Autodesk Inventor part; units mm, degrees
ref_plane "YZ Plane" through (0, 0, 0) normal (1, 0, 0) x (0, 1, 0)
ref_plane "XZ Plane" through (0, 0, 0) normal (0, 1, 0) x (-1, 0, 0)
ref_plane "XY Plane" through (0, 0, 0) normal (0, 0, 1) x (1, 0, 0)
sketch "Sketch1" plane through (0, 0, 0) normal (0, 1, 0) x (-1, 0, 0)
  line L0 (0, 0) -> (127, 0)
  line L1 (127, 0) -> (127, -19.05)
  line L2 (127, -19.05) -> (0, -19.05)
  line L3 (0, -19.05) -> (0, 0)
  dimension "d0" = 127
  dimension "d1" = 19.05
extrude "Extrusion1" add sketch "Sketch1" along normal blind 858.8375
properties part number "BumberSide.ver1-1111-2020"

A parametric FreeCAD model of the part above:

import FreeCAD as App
import Part
import Sketcher
Q = App.Units.Quantity

doc = App.newDocument("Part")
params = doc.addObject("Spreadsheet::Sheet", "Params")
for row, (alias, value) in enumerate([
    ("sketch1_width", "5 in"),
    ("sketch1_height", "0.75 in"),
    ("pad1_length", "33.8125 in"),
], start=1):
    params.set(f"A{row}", alias)
    params.set(f"B{row}", "=" + value)
    params.setAlias(f"B{row}", alias)

body = doc.addObject("PartDesign::Body", "Body")

sketch1 = body.newObject("Sketcher::SketchObject", "Sketch")
sketch1.AttachmentSupport = (doc.getObject("XZ_Plane"), [""])
sketch1.MapMode = "FlatFace"
sketch1.addGeometry(Part.LineSegment(App.Vector(-127, 0, 0), App.Vector(0, 0, 0)), False)
sketch1.addGeometry(Part.LineSegment(App.Vector(0, 0, 0), App.Vector(0, -19, 0)), False)
sketch1.addGeometry(Part.LineSegment(App.Vector(0, -19, 0), App.Vector(-127, -19, 0)), False)
sketch1.addGeometry(Part.LineSegment(App.Vector(-127, -19, 0), App.Vector(-127, 0, 0)), False)
sketch1.addConstraint(Sketcher.Constraint("Coincident", 0, 2, 1, 1))
sketch1.addConstraint(Sketcher.Constraint("Coincident", 1, 2, 2, 1))
sketch1.addConstraint(Sketcher.Constraint("Coincident", 2, 2, 3, 1))
sketch1.addConstraint(Sketcher.Constraint("Coincident", 3, 2, 0, 1))
sketch1.addConstraint(Sketcher.Constraint("Horizontal", 0))
sketch1.addConstraint(Sketcher.Constraint("Vertical", 1))
sketch1.addConstraint(Sketcher.Constraint("Horizontal", 2))
sketch1.addConstraint(Sketcher.Constraint("Vertical", 3))
sketch1.addConstraint(Sketcher.Constraint("Coincident", 0, 2, -1, 1))
sketch1.addConstraint(Sketcher.Constraint("DistanceX", 0, 1, 0, 2, Q("5 in")))
sketch1.addConstraint(Sketcher.Constraint("DistanceY", 1, 2, 1, 1, Q("0.75 in")))
sketch1.setExpression("Constraints[9]", "Params.sketch1_width")
sketch1.setExpression("Constraints[10]", "Params.sketch1_height")
pad1 = body.newObject("PartDesign::Pad", "Pad")
pad1.Profile = sketch1
pad1.setExpression("Length", "Params.pad1_length")
pad1.Reversed = True

doc.recompute()
